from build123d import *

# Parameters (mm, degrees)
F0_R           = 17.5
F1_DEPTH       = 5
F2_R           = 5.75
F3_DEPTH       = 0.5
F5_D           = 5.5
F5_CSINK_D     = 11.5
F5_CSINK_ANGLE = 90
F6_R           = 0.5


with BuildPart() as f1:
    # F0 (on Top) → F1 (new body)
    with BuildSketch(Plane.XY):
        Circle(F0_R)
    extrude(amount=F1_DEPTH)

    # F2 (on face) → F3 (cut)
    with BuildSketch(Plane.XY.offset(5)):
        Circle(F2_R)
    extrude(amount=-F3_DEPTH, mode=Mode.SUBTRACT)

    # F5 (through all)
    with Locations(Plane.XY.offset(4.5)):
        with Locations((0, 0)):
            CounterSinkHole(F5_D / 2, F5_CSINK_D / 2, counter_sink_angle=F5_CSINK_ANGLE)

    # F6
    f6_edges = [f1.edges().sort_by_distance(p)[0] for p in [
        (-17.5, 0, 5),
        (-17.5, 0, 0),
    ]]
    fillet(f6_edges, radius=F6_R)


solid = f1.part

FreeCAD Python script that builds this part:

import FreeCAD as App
import Part
import Sketcher

V = App.Vector


def edges_at(feature, points):
    """Names of the edges that pass closest to the given points."""
    edges = feature.Shape.Edges
    near = lambda p: min(range(len(edges)), key=lambda i: edges[i].distToShape(Part.Vertex(*p))[0])
    return sorted({f"Edge{near(p) + 1}" for p in points})

doc = App.newDocument("Part")
body = doc.addObject("PartDesign::Body", "Body")

# Sketch on XY plane
sketch1 = body.newObject("Sketcher::SketchObject", "Sketch")
sketch1.AttachmentSupport = (doc.getObject("XY_Plane"), [""])
sketch1.MapMode = "FlatFace"
sketch1.addGeometry(Part.Circle(V(0, 0, 0), V(0, 0, 1), 18), False)
sketch1.addConstraint([
    Sketcher.Constraint("Coincident", 0, 3, -1, 1),
    Sketcher.Constraint("Diameter", 0, 35.0),
])
pad1 = body.newObject("PartDesign::Pad", "Pad")
pad1.Profile = sketch1
pad1.Length = 5

# Sketch on XY plane
sketch2 = body.newObject("Sketcher::SketchObject", "Sketch001")
sketch2.AttachmentSupport = (doc.getObject("XY_Plane"), [""])
sketch2.MapMode = "FlatFace"
sketch2.AttachmentOffset = App.Placement(V(0, 0, 5), App.Rotation())
sketch2.addGeometry(Part.Circle(V(0, 0, 0), V(0, 0, 1), 6), False)
sketch2.addConstraint([
    Sketcher.Constraint("Coincident", 0, 3, -1, 1),
    Sketcher.Constraint("Diameter", 0, 11.5),
])
pocket1 = body.newObject("PartDesign::Pocket", "Pocket")
pocket1.Profile = sketch2
pocket1.Length = 0.5

# Sketch on XY plane
sketch3 = body.newObject("Sketcher::SketchObject", "Sketch002")
sketch3.AttachmentSupport = (doc.getObject("XY_Plane"), [""])
sketch3.MapMode = "FlatFace"
sketch3.AttachmentOffset = App.Placement(V(0, 0, 4.5), App.Rotation())
sketch3.addGeometry(Part.Circle(V(0, 0, 0), V(0, 0, 1), 2.8), False)
sketch3.addConstraint([
    Sketcher.Constraint("Coincident", 0, 3, -1, 1),
    Sketcher.Constraint("Diameter", 0, 5.5),
])
doc.recompute()
hole = body.newObject("PartDesign::Hole", "Hole")
hole.Profile = sketch3
hole.ThreadType = "None"
hole.Diameter = 5.5
hole.DepthType = "ThroughAll"
hole.HoleCutType = "Countersink"
hole.HoleCutDiameter = 11.5
hole.HoleCutCountersinkAngle = 90
doc.recompute()

fillet = body.newObject("PartDesign::Fillet", "Fillet")
fillet.Base = (hole, edges_at(hole, [(-17.5, 0, 5), (-17.5, 0, 0)]))
fillet.Radius = 0.5

doc.recompute()
